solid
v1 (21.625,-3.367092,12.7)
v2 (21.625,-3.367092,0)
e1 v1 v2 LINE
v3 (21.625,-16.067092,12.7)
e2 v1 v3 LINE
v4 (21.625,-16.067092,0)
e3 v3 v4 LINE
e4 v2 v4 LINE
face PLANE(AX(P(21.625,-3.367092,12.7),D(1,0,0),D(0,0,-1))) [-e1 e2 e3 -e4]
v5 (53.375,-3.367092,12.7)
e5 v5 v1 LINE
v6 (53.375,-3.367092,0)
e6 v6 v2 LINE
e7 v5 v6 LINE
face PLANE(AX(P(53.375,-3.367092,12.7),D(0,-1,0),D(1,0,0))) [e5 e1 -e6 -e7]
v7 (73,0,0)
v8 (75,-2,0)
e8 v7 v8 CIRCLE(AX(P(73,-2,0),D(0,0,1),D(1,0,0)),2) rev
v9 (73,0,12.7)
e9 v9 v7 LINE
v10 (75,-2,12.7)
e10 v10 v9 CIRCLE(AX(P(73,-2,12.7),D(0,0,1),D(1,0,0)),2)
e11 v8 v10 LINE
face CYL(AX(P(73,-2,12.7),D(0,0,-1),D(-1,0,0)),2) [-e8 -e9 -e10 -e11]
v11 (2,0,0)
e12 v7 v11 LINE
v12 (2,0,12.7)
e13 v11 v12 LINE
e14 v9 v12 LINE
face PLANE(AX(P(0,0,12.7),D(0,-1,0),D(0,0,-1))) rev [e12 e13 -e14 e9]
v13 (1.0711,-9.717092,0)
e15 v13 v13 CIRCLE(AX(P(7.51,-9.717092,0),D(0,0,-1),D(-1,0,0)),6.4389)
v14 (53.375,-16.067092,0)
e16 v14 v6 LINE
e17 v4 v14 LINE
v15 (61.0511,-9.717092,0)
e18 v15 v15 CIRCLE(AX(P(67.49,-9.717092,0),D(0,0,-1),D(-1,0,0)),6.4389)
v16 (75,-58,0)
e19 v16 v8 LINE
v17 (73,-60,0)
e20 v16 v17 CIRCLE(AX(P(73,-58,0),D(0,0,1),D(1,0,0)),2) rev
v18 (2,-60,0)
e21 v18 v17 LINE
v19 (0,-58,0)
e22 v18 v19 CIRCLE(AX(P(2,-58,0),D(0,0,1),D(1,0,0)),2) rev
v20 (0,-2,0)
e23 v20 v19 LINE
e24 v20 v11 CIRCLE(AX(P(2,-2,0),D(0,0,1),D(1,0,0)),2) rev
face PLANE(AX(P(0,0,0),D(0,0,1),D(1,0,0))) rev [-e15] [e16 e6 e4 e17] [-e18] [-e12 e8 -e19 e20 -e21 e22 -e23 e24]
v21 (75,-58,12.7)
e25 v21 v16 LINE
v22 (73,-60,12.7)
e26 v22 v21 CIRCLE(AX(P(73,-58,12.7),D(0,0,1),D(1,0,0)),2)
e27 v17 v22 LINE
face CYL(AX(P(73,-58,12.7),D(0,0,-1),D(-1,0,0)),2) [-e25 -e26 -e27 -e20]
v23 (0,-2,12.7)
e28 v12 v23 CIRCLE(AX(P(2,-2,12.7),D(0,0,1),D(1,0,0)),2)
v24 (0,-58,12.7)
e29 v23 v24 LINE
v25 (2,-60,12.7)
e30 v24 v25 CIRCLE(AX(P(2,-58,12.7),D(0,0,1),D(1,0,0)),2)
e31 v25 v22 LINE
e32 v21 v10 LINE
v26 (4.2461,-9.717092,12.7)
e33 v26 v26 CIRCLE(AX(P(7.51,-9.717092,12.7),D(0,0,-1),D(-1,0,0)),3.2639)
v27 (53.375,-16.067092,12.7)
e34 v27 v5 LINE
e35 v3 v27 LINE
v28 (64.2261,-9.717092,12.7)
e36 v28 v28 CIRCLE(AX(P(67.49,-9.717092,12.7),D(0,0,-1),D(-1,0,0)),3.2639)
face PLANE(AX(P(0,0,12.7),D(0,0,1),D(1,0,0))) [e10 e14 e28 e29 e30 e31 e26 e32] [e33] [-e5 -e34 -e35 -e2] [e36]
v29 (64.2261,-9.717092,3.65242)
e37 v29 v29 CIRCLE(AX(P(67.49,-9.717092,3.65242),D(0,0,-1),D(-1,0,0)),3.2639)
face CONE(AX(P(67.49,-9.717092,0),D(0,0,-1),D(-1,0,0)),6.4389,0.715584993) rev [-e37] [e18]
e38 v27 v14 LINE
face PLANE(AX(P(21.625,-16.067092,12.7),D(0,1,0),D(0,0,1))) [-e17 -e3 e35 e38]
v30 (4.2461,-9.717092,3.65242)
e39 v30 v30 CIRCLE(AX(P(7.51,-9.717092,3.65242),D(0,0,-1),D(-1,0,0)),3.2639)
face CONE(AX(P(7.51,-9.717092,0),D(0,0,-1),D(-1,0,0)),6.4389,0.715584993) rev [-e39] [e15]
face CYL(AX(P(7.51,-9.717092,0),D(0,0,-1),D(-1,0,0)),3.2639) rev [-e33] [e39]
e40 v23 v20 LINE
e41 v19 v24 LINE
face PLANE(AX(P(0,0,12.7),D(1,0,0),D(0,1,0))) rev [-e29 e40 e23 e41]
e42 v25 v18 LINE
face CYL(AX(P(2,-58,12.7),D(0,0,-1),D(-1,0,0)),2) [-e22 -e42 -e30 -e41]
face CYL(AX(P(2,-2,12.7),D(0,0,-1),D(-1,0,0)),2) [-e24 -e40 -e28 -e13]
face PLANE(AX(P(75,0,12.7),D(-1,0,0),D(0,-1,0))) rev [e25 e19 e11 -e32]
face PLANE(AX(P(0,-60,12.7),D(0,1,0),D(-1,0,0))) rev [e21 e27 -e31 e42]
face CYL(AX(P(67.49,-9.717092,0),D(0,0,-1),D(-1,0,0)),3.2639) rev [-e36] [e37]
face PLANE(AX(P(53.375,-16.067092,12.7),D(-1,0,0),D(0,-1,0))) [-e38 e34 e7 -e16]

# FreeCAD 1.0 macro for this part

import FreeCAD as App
import Part
import Sketcher

V = App.Vector
Q = App.Units.Quantity


def edges_at(feature, points):
    """Names of the edges that pass closest to the given points."""
    edges = feature.Shape.Edges
    near = lambda p: min(range(len(edges)), key=lambda i: edges[i].distToShape(Part.Vertex(*p))[0])
    return sorted({f"Edge{near(p) + 1}" for p in points})

doc = App.newDocument("Part")
params = doc.addObject("Spreadsheet::Sheet", "Params")
for row, (alias, value) in enumerate([
    ("sketch1_width", "75 mm"),
    ("sketch1_height", "60 mm"),
    ("sketch1_height2", "12.7 mm"),
    ("sketch1_width2", "31.75 mm"),
    ("pad1_length", "12.7 mm"),
    ("hole_diameter", "6.5278 mm"),
    ("hole_csink_diameter", "12.8778 mm"),
    ("fillet_radius", "2 mm"),
], start=1):
    params.set(f"A{row}", alias)
    params.set(f"B{row}", "=" + value)
    params.setAlias(f"B{row}", alias)

body = doc.addObject("PartDesign::Body", "Body")

# Sketch on XY plane
sketch1 = body.newObject("Sketcher::SketchObject", "Sketch")
sketch1.AttachmentSupport = (doc.getObject("XY_Plane"), [""])
sketch1.MapMode = "FlatFace"
sketch1.addGeometry([
    Part.LineSegment(V(0, 0, 0), V(0, -60, 0)),  # 0
    Part.LineSegment(V(0, -60, 0), V(75, -60, 0)),  # 1
    Part.LineSegment(V(75, -60, 0), V(75, 0, 0)),  # 2
    Part.LineSegment(V(75, 0, 0), V(0, 0, 0)),  # 3
    Part.LineSegment(V(21.625, -16.067092, 0), V(21.625, -3.367092, 0)),  # 4
    Part.LineSegment(V(21.625, -3.367092, 0), V(53.375, -3.367092, 0)),  # 5
    Part.LineSegment(V(53.375, -3.367092, 0), V(53.375, -16.067092, 0)),  # 6
    Part.LineSegment(V(53.375, -16.067092, 0), V(21.625, -16.067092, 0)),  # 7
], False)
sketch1.addConstraint([
    Sketcher.Constraint("Coincident", 0, 2, 1, 1),
    Sketcher.Constraint("Coincident", 1, 2, 2, 1),
    Sketcher.Constraint("Coincident", 2, 2, 3, 1),
    Sketcher.Constraint("Coincident", 3, 2, 0, 1),
    Sketcher.Constraint("Coincident", 4, 2, 5, 1),
    Sketcher.Constraint("Coincident", 5, 2, 6, 1),
    Sketcher.Constraint("Coincident", 6, 2, 7, 1),
    Sketcher.Constraint("Coincident", 7, 2, 4, 1),
    Sketcher.Constraint("Vertical", 0),
    Sketcher.Constraint("Horizontal", 1),
    Sketcher.Constraint("Vertical", 2),
    Sketcher.Constraint("Horizontal", 3),
    Sketcher.Constraint("Vertical", 4),
    Sketcher.Constraint("Horizontal", 5),
    Sketcher.Constraint("Vertical", 6),
    Sketcher.Constraint("Horizontal", 7),
    Sketcher.Constraint("Coincident", 3, 2, -1, 1),
    Sketcher.Constraint("DistanceX", 1, 1, 1, 2, Q("75 mm")),
    Sketcher.Constraint("DistanceY", 0, 2, 0, 1, Q("60 mm")),
    Sketcher.Constraint("DistanceY", 4, 1, 4, 2, Q("12.7 mm")),
    Sketcher.Constraint("DistanceX", 5, 1, 5, 2, Q("31.75 mm")),
    Sketcher.Constraint("DistanceX", -1, 1, 4, 2, Q("21.625 mm")),
    Sketcher.Constraint("DistanceY", 4, 2, -1, 1, Q("3.367092 mm")),
])
sketch1.setExpression("Constraints[17]", "Params.sketch1_width")
sketch1.setExpression("Constraints[18]", "Params.sketch1_height")
sketch1.setExpression("Constraints[19]", "Params.sketch1_height2")
sketch1.setExpression("Constraints[20]", "Params.sketch1_width2")
pad1 = body.newObject("PartDesign::Pad", "Pad")
pad1.Profile = sketch1
pad1.setExpression("Length", "Params.pad1_length")

# Sketch on XY plane
sketch2 = body.newObject("Sketcher::SketchObject", "Sketch001")
sketch2.AttachmentSupport = (doc.getObject("XY_Plane"), [""])
sketch2.MapMode = "FlatFace"
sketch2.addGeometry([
    Part.Circle(V(67.49, -9.717092, 0), V(0, 0, 1), 3.2639),
    Part.Circle(V(7.51, -9.717092, 0), V(0, 0, 1), 3.2639),
], False)
sketch2.addConstraint([
    Sketcher.Constraint("Equal", 0, 1),
    Sketcher.Constraint("Horizontal", 0, 3, 1, 3),
    Sketcher.Constraint("Diameter", 0, Q("6.5278 mm")),
    Sketcher.Constraint("DistanceX", -1, 1, 0, 3, Q("67.49 mm")),
    Sketcher.Constraint("DistanceX", -1, 1, 1, 3, Q("7.51 mm")),
    Sketcher.Constraint("DistanceY", 0, 3, -1, 1, Q("9.717092 mm")),
])
doc.recompute()
hole = body.newObject("PartDesign::Hole", "Hole")
hole.Profile = sketch2
hole.ThreadType = "None"
hole.setExpression("Diameter", "Params.hole_diameter")
hole.DepthType = "ThroughAll"
hole.HoleCutType = "Countersink"
hole.setExpression("HoleCutDiameter", "Params.hole_csink_diameter")
hole.HoleCutCountersinkAngle = 82
hole.Reversed = True
doc.recompute()

fillet = body.newObject("PartDesign::Fillet", "Fillet")
fillet.Base = (hole, edges_at(hole, [
    (0, 0, 6.35),
    (75, 0, 6.35),
    (75, -60, 6.35),
    (0, -60, 6.35),
]))
fillet.setExpression("Radius", "Params.fillet_radius")

doc.recompute()
